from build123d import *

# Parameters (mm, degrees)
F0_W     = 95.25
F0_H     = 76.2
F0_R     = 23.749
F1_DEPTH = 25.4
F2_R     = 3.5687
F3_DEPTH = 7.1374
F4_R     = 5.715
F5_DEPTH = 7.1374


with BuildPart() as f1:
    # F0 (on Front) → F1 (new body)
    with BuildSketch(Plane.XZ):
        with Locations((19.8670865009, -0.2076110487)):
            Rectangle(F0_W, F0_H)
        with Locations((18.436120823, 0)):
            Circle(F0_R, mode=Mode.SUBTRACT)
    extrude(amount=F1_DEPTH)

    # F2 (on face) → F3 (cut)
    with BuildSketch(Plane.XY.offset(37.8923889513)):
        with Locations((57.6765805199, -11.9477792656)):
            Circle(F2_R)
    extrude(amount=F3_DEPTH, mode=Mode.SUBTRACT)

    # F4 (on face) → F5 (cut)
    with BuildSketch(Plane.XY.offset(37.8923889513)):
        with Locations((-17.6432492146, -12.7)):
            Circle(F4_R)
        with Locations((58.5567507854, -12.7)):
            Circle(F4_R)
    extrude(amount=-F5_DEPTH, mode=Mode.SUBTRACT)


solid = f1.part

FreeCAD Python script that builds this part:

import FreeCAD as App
import Part
import Sketcher

V = App.Vector
Q = App.Units.Quantity


def add_polygon(sketch, points):
    """Adds a closed chain of lines whose ends are joined by coincident constraints."""
    first, n = sketch.GeometryCount, len(points)
    for a, b in zip(points, points[1:] + points[:1]):
        sketch.addGeometry(Part.LineSegment(App.Vector(*a, 0), App.Vector(*b, 0)), False)
    for i in range(n):
        sketch.addConstraint(Sketcher.Constraint("Coincident", first + i, 2, first + (i + 1) % n, 1))

doc = App.newDocument("Part")
body = doc.addObject("PartDesign::Body", "Body")

sketch1 = body.newObject("Sketcher::SketchObject", "Sketch")
sketch1.AttachmentSupport = (doc.getObject("XZ_Plane"), [""])
sketch1.MapMode = "FlatFace"
add_polygon(sketch1, [(-28, 38), (-28, -38), (67, -38), (67, 38)])
sketch1.addGeometry(Part.Circle(V(18, 0, 0), V(0, 0, 1), 24), False)
sketch1.addConstraint(Sketcher.Constraint("Vertical", 0))
sketch1.addConstraint(Sketcher.Constraint("Horizontal", 1))
sketch1.addConstraint(Sketcher.Constraint("Vertical", 2))
sketch1.addConstraint(Sketcher.Constraint("Horizontal", 3))
sketch1.addConstraint(Sketcher.Constraint("PointOnObject", 4, 3, -1))
sketch1.addConstraint(Sketcher.Constraint("Diameter", 4, Q("1.87 in")))
sketch1.addConstraint(Sketcher.Constraint("DistanceY", 0, 2, 0, 1, Q("3 in")))
sketch1.addConstraint(Sketcher.Constraint("DistanceX", 1, 1, 1, 2, Q("3.75 in")))
sketch1.addConstraint(Sketcher.Constraint("DistanceX", -1, 1, 4, 3, 18.436121))
sketch1.addConstraint(Sketcher.Constraint("DistanceY", 0, 2, -1, 1, 38.307611))
sketch1.addConstraint(Sketcher.Constraint("DistanceX", 0, 2, -1, 1, 27.757913))
pad1 = body.newObject("PartDesign::Pad", "Pad")
pad1.Profile = sketch1
pad1.Length = Q("1 in")

sketch2 = body.newObject("Sketcher::SketchObject", "Sketch001")
sketch2.AttachmentSupport = (doc.getObject("XY_Plane"), [""])
sketch2.MapMode = "FlatFace"
sketch2.AttachmentOffset = App.Placement(V(0, 0, 37.892389), App.Rotation())
sketch2.addGeometry(Part.Circle(V(57.7, -11.9, 0), V(0, 0, 1), 3.6), False)
sketch2.addConstraint(Sketcher.Constraint("Diameter", 0, Q("0.281 in")))
sketch2.addConstraint(Sketcher.Constraint("DistanceX", -1, 1, 0, 3, 57.676581))
sketch2.addConstraint(Sketcher.Constraint("DistanceY", 0, 3, -1, 1, 11.947779))
pocket1 = body.newObject("PartDesign::Pocket", "Pocket")
pocket1.Profile = sketch2
pocket1.Length = Q("0.281 in")
pocket1.Reversed = True

sketch3 = body.newObject("Sketcher::SketchObject", "Sketch002")
sketch3.AttachmentSupport = (doc.getObject("XY_Plane"), [""])
sketch3.MapMode = "FlatFace"
sketch3.AttachmentOffset = App.Placement(V(0, 0, 37.892389), App.Rotation())
sketch3.addGeometry(Part.Circle(V(-18, -13, 0), V(0, 0, 1), 6), False)
sketch3.addGeometry(Part.Circle(V(59, -13, 0), V(0, 0, 1), 6), False)
sketch3.addConstraint(Sketcher.Constraint("Equal", 0, 1))
sketch3.addConstraint(Sketcher.Constraint("Horizontal", 0, 3, 1, 3))
sketch3.addConstraint(Sketcher.Constraint("Diameter", 0, Q("0.45 in")))
sketch3.addConstraint(Sketcher.Constraint("DistanceX", 0, 3, 1, 3, Q("3 in")))
sketch3.addConstraint(Sketcher.Constraint("DistanceY", 0, 3, -1, 1, Q("0.5 in")))
sketch3.addConstraint(Sketcher.Constraint("DistanceX", 0, 3, -1, 1, 17.643249))
pocket2 = body.newObject("PartDesign::Pocket", "Pocket001")
pocket2.Profile = sketch3
pocket2.Length = Q("0.281 in")

doc.recompute()
